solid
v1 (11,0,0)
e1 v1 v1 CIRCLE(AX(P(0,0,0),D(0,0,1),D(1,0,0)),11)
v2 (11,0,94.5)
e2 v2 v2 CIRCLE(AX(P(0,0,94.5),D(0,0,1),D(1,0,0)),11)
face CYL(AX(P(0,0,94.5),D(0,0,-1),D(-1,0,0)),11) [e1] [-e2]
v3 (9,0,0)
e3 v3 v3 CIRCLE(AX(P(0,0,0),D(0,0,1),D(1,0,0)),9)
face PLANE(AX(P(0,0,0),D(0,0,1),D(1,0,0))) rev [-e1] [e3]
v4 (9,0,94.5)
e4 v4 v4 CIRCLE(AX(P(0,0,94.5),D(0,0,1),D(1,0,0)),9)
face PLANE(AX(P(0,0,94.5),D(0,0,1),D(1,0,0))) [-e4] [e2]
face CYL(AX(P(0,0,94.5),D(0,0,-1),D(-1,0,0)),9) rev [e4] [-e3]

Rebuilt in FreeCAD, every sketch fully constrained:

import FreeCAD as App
import Part
import Sketcher
Q = App.Units.Quantity

doc = App.newDocument("Part")
body = doc.addObject("PartDesign::Body", "Body")

# Sketch on XY plane
sketch1 = doc.addObject("Sketcher::SketchObject", "Sketch")
body.addObject(sketch1)
sketch1.AttachmentSupport = (doc.XY_Plane, [""])
sketch1.MapMode = "FlatFace"
sketch1.addGeometry([
    Part.Circle(App.Vector(0, 0, 0), App.Vector(0, 0, 1), 11),
    Part.Circle(App.Vector(0, 0, 0), App.Vector(0, 0, 1), 9),
], False)
sketch1.addConstraint([
    Sketcher.Constraint("Coincident", 0, 3, -1, 1),
    Sketcher.Constraint("Coincident", 1, 3, -1, 1),
    Sketcher.Constraint("Diameter", 0, Q("22 mm")),
    Sketcher.Constraint("Diameter", 1, Q("18 mm")),
])
pad1 = doc.addObject("PartDesign::Pad", "Pad")
body.addObject(pad1)
pad1.Profile = sketch1
pad1.Length = 94.5

doc.recompute()
